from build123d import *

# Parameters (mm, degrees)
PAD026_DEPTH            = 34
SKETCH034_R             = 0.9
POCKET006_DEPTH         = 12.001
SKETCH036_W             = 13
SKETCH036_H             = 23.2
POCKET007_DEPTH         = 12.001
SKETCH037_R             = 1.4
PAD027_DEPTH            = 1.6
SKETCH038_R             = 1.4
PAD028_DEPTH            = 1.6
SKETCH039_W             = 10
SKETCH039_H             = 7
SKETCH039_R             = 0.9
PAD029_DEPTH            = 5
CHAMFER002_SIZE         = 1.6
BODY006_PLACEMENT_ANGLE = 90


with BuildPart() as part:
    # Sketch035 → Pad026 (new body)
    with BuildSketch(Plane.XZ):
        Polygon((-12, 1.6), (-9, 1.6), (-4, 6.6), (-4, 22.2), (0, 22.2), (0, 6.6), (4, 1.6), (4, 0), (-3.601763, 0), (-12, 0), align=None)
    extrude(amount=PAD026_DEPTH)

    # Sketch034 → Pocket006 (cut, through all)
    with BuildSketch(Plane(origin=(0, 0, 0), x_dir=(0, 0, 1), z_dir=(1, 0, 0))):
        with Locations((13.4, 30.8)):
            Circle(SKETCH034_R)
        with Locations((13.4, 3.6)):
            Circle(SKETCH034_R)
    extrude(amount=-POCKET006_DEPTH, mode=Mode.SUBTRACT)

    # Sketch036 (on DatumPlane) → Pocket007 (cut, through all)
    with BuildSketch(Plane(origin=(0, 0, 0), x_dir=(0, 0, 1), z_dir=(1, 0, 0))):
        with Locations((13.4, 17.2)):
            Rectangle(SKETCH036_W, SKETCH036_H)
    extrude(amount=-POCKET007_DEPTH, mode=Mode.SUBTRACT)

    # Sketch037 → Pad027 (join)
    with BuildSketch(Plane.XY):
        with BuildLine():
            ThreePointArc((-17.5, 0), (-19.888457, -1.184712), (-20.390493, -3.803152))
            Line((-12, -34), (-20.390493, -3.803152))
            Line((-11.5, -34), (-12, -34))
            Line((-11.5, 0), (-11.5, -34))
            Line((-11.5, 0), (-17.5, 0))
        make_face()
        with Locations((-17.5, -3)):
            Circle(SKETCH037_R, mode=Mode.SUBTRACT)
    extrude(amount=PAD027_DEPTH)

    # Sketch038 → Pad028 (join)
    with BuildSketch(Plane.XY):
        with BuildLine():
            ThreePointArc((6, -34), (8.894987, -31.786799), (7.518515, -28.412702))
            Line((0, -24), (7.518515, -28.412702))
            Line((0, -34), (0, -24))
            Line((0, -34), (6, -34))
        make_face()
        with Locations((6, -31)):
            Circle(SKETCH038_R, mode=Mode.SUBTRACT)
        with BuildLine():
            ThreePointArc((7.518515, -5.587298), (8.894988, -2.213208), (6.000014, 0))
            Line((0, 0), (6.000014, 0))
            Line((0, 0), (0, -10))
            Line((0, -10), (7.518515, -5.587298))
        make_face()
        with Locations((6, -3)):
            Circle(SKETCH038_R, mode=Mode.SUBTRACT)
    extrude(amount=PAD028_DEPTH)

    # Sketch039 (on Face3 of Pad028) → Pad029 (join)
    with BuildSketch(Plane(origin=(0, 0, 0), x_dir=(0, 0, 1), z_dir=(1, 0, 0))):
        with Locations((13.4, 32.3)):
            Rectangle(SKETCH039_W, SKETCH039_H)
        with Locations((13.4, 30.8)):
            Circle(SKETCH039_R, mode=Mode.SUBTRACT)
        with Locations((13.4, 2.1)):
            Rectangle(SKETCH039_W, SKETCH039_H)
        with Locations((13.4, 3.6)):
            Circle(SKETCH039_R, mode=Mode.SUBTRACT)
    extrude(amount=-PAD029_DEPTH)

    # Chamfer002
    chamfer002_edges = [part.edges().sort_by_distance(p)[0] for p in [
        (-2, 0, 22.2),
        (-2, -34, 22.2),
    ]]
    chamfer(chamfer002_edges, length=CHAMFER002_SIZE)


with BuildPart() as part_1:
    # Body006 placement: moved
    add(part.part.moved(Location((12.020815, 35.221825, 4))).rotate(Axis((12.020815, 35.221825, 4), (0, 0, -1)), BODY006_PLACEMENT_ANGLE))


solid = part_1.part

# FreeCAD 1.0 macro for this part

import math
import FreeCAD as App
import Part
import Sketcher
from FreeCAD import Vector
Q = App.Units.Quantity


def edges_at(feature, points):
    """Names of the edges that pass closest to the given points."""
    edges = feature.Shape.Edges
    near = lambda p: min(range(len(edges)), key=lambda i: edges[i].distToShape(Part.Vertex(*p))[0])
    return sorted({f"Edge{near(p) + 1}" for p in points})


def add_polygon(sketch, points):
    """Adds a closed chain of lines whose ends are joined by coincident constraints."""
    first, n = sketch.GeometryCount, len(points)
    for a, b in zip(points, points[1:] + points[:1]):
        sketch.addGeometry(Part.LineSegment(App.Vector(*a, 0), App.Vector(*b, 0)), False)
    for i in range(n):
        sketch.addConstraint(Sketcher.Constraint("Coincident", first + i, 2, first + (i + 1) % n, 1))

doc = App.newDocument("Part")
body = doc.addObject("PartDesign::Body", "Body")

# Sketch on XZ plane
sketch1 = body.newObject("Sketcher::SketchObject", "Sketch")
sketch1.AttachmentSupport = (doc.getObject("XZ_Plane"), [""])
sketch1.MapMode = "FlatFace"
add_polygon(sketch1, [(-9, 1.6), (-12, 1.6), (-12, 0), (4, 0), (4, 1.6), (0, 6.6), (0, 22.2), (-4, 22.2), (-4, 6.6)])  # lines 0-8
sketch1.addConstraint(Sketcher.Constraint("Horizontal", 0))
sketch1.addConstraint(Sketcher.Constraint("Vertical", 1))
sketch1.addConstraint(Sketcher.Constraint("Horizontal", 2))
sketch1.addConstraint(Sketcher.Constraint("Vertical", 3))
sketch1.addConstraint(Sketcher.Constraint("Vertical", 5))
sketch1.addConstraint(Sketcher.Constraint("Horizontal", 6))
sketch1.addConstraint(Sketcher.Constraint("Vertical", 7))
sketch1.addConstraint(Sketcher.Constraint("PointOnObject", 1, 2, -1))
sketch1.addConstraint(Sketcher.Constraint("PointOnObject", 4, 2, -2))
sketch1.addConstraint(Sketcher.Constraint("Horizontal", 0, 2, 3, 2))
sketch1.addConstraint(Sketcher.Constraint("Horizontal", 4, 2, 7, 2))
sketch1.addConstraint(Sketcher.Constraint("DistanceX", 0, 2, 0, 1, 3.0))
sketch1.addConstraint(Sketcher.Constraint("DistanceX", 2, 1, 2, 2, 16.0))
sketch1.addConstraint(Sketcher.Constraint("DistanceX", 6, 2, 6, 1, 4.0))
sketch1.addConstraint(Sketcher.Constraint("Angle", 8, Q("-135 deg")))
sketch1.addConstraint(Sketcher.Constraint("DistanceY", 1, 2, 1, 1, 1.6))
sketch1.addConstraint(Sketcher.Constraint("DistanceY", 5, 1, 5, 2, 15.6))
sketch1.addConstraint(Sketcher.Constraint("DistanceX", 0, 2, -1, 1, 12.0))
pad1 = body.newObject("PartDesign::Pad", "Pad")
pad1.Profile = sketch1
pad1.Length = 34

# Sketch on YZ plane
sketch2 = body.newObject("Sketcher::SketchObject", "Sketch001")
sketch2.AttachmentSupport = (doc.getObject("YZ_Plane"), [""])
sketch2.MapMode = "FlatFace"
sketch2.addGeometry(Part.Circle(Vector(-30.8, 13.4, 0), Vector(0, 0, 1), 0.9), False)
sketch2.addGeometry(Part.Circle(Vector(-3.6, 13.4, 0), Vector(0, 0, 1), 0.9), False)
sketch2.addConstraint(Sketcher.Constraint("Equal", 0, 1))
sketch2.addConstraint(Sketcher.Constraint("Horizontal", 0, 3, 1, 3))
sketch2.addConstraint(Sketcher.Constraint("Diameter", 0, 1.8))
sketch2.addConstraint(Sketcher.Constraint("DistanceX", 0, 3, -1, 1, 30.8))
sketch2.addConstraint(Sketcher.Constraint("DistanceY", -1, 1, 0, 3, 13.4))
sketch2.addConstraint(Sketcher.Constraint("DistanceX", 1, 3, -1, 1, 3.6))
pocket1 = body.newObject("PartDesign::Pocket", "Pocket")
pocket1.Profile = sketch2
pocket1.Type = "ThroughAll"

# Sketch on YZ plane
sketch3 = body.newObject("Sketcher::SketchObject", "Sketch002")
sketch3.AttachmentSupport = (doc.getObject("YZ_Plane"), [""])
sketch3.MapMode = "FlatFace"
add_polygon(sketch3, [(-28.8, 6.9), (-5.6, 6.9), (-5.6, 19.9), (-28.8, 19.9)])  # lines 0-3
sketch3.addConstraint(Sketcher.Constraint("Horizontal", 0))
sketch3.addConstraint(Sketcher.Constraint("Vertical", 1))
sketch3.addConstraint(Sketcher.Constraint("Horizontal", 2))
sketch3.addConstraint(Sketcher.Constraint("Vertical", 3))
sketch3.addConstraint(Sketcher.Constraint("DistanceY", 1, 1, 1, 2, 13.0))
sketch3.addConstraint(Sketcher.Constraint("DistanceX", 0, 1, 0, 2, 23.2))
sketch3.addConstraint(Sketcher.Constraint("DistanceX", 0, 2, -1, 1, 5.6))
sketch3.addConstraint(Sketcher.Constraint("DistanceY", -1, 1, 0, 2, 6.9))
pocket2 = body.newObject("PartDesign::Pocket", "Pocket001")
pocket2.Profile = sketch3
pocket2.Type = "ThroughAll"

# Sketch on XY plane
sketch4 = body.newObject("Sketcher::SketchObject", "Sketch003")
sketch4.AttachmentSupport = (doc.getObject("XY_Plane"), [""])
sketch4.MapMode = "FlatFace"
sketch4.addGeometry(Part.ArcOfCircle(Part.Circle(Vector(-17.499999, -3.000001, 0), Vector(0, 0, 1), 3.000001), math.radians(90.000023), math.radians(195.528448)), False)
sketch4.addGeometry(Part.LineSegment(Vector(-20.390493, -3.803152, 0), Vector(-12, -34, 0)), False)
sketch4.addGeometry(Part.LineSegment(Vector(-12, -34, 0), Vector(-11.5, -34, 0)), False)
sketch4.addGeometry(Part.LineSegment(Vector(-11.5, -34, 0), Vector(-11.5, 0, 0)), False)
sketch4.addGeometry(Part.LineSegment(Vector(-11.5, 0, 0), Vector(-17.5, 0, 0)), False)
sketch4.addGeometry(Part.Circle(Vector(-17.5, -3, 0), Vector(0, 0, 1), 1.4), False)
sketch4.addConstraint(Sketcher.Constraint("Tangent", 0, 2, 1, 1))
sketch4.addConstraint(Sketcher.Constraint("Coincident", 1, 2, 2, 1))
sketch4.addConstraint(Sketcher.Constraint("Coincident", 2, 2, 3, 1))
sketch4.addConstraint(Sketcher.Constraint("Coincident", 3, 2, 4, 1))
sketch4.addConstraint(Sketcher.Constraint("Tangent", 4, 2, 0, 1))
sketch4.addConstraint(Sketcher.Constraint("Horizontal", 2))
sketch4.addConstraint(Sketcher.Constraint("Vertical", 3))
sketch4.addConstraint(Sketcher.Constraint("Horizontal", 4))
sketch4.addConstraint(Sketcher.Constraint("Coincident", 5, 3, 0, 3))
sketch4.addConstraint(Sketcher.Constraint("PointOnObject", 3, 2, -1))
sketch4.addConstraint(Sketcher.Constraint("Radius", 0, 3.000001))
sketch4.addConstraint(Sketcher.Constraint("Diameter", 5, 2.8))
sketch4.addConstraint(Sketcher.Constraint("DistanceX", 4, 2, 4, 1, 6.0))
sketch4.addConstraint(Sketcher.Constraint("DistanceY", 3, 1, 3, 2, 34.0))
sketch4.addConstraint(Sketcher.Constraint("DistanceX", 2, 1, 2, 2, 0.5))
sketch4.addConstraint(Sketcher.Constraint("DistanceX", 1, 2, -1, 1, 12.0))
pad2 = body.newObject("PartDesign::Pad", "Pad001")
pad2.Profile = sketch4
pad2.Length = 1.6

# Sketch on XY plane
sketch5 = body.newObject("Sketcher::SketchObject", "Sketch004")
sketch5.AttachmentSupport = (doc.getObject("XY_Plane"), [""])
sketch5.MapMode = "FlatFace"
sketch5.addGeometry(Part.ArcOfCircle(Part.Circle(Vector(6.000001, -31, 0), Vector(0, 0, 1), 3), math.radians(-90.000012), math.radians(59.59085)), False)
sketch5.addGeometry(Part.LineSegment(Vector(7.518515, -28.412702, 0), Vector(0, -24, 0)), False)
sketch5.addGeometry(Part.LineSegment(Vector(0, -24, 0), Vector(0, -34, 0)), False)
sketch5.addGeometry(Part.LineSegment(Vector(0, -34, 0), Vector(6, -34, 0)), False)
sketch5.addGeometry(Part.Circle(Vector(6, -31, 0), Vector(0, 0, 1), 1.4), False)
sketch5.addGeometry(Part.ArcOfCircle(Part.Circle(Vector(5.999999, -3, 0), Vector(0, 0, 1), 3), math.radians(-59.590828), math.radians(89.999723)), False)
sketch5.addGeometry(Part.LineSegment(Vector(6.000014, 0, 0), Vector(0, 0, 0)), False)
sketch5.addGeometry(Part.LineSegment(Vector(0, 0, 0), Vector(0, -10, 0)), False)
sketch5.addGeometry(Part.LineSegment(Vector(0, -10, 0), Vector(7.518515, -5.587298, 0)), False)
sketch5.addGeometry(Part.Circle(Vector(6, -3, 0), Vector(0, 0, 1), 1.4), False)
sketch5.addConstraint(Sketcher.Constraint("Tangent", 0, 2, 1, 1))
sketch5.addConstraint(Sketcher.Constraint("Coincident", 1, 2, 2, 1))
sketch5.addConstraint(Sketcher.Constraint("Coincident", 2, 2, 3, 1))
sketch5.addConstraint(Sketcher.Constraint("Tangent", 3, 2, 0, 1))
sketch5.addConstraint(Sketcher.Constraint("Coincident", 5, 2, 6, 1))
sketch5.addConstraint(Sketcher.Constraint("Coincident", 6, 2, 7, 1))
sketch5.addConstraint(Sketcher.Constraint("Coincident", 7, 2, 8, 1))
sketch5.addConstraint(Sketcher.Constraint("Tangent", 8, 2, 5, 1))
sketch5.addConstraint(Sketcher.Constraint("Vertical", 2))
sketch5.addConstraint(Sketcher.Constraint("Horizontal", 3))
sketch5.addConstraint(Sketcher.Constraint("Horizontal", 6))
sketch5.addConstraint(Sketcher.Constraint("Vertical", 7))
sketch5.addConstraint(Sketcher.Constraint("Coincident", 6, 2, -1, 1))
sketch5.addConstraint(Sketcher.Constraint("Coincident", 4, 3, 0, 3))
sketch5.addConstraint(Sketcher.Constraint("Coincident", 9, 3, 5, 3))
sketch5.addConstraint(Sketcher.Constraint("Equal", 0, 5))
sketch5.addConstraint(Sketcher.Constraint("Equal", 4, 9))
sketch5.addConstraint(Sketcher.Constraint("PointOnObject", 1, 2, -2))
sketch5.addConstraint(Sketcher.Constraint("Vertical", 4, 3, 5, 3))
sketch5.addConstraint(Sketcher.Constraint("Vertical", 0, 2, 8, 2))
sketch5.addConstraint(Sketcher.Constraint("Radius", 0, 3.0))
sketch5.addConstraint(Sketcher.Constraint("Diameter", 4, 2.8))
sketch5.addConstraint(Sketcher.Constraint("DistanceX", 3, 1, 3, 2, 6.0))
sketch5.addConstraint(Sketcher.Constraint("DistanceY", 2, 2, 2, 1, 10.0))
sketch5.addConstraint(Sketcher.Constraint("DistanceY", 0, 3, -1, 1, 31.0))
sketch5.addConstraint(Sketcher.Constraint("DistanceX", 5, 2, 0, 2, 1.518501))
pad3 = body.newObject("PartDesign::Pad", "Pad002")
pad3.Profile = sketch5
pad3.Length = 1.6

# Sketch on YZ plane
sketch6 = body.newObject("Sketcher::SketchObject", "Sketch005")
sketch6.AttachmentSupport = (doc.getObject("YZ_Plane"), [""])
sketch6.MapMode = "FlatFace"
add_polygon(sketch6, [(-35.8, 8.4), (-28.8, 8.4), (-28.8, 18.4), (-35.8, 18.4)])  # lines 0-3
sketch6.addGeometry(Part.Circle(Vector(-30.8, 13.4, 0), Vector(0, 0, 1), 0.9), False)  # 4
add_polygon(sketch6, [(-5.6, 8.4), (1.4, 8.4), (1.4, 18.4), (-5.6, 18.4)])  # lines 5-8
sketch6.addGeometry(Part.Circle(Vector(-3.6, 13.4, 0), Vector(0, 0, 1), 0.9), False)  # 9
sketch6.addConstraint(Sketcher.Constraint("Horizontal", 0))
sketch6.addConstraint(Sketcher.Constraint("Vertical", 1))
sketch6.addConstraint(Sketcher.Constraint("Horizontal", 2))
sketch6.addConstraint(Sketcher.Constraint("Vertical", 3))
sketch6.addConstraint(Sketcher.Constraint("Horizontal", 5))
sketch6.addConstraint(Sketcher.Constraint("Vertical", 6))
sketch6.addConstraint(Sketcher.Constraint("Horizontal", 7))
sketch6.addConstraint(Sketcher.Constraint("Vertical", 8))
sketch6.addConstraint(Sketcher.Constraint("Equal", 4, 9))
sketch6.addConstraint(Sketcher.Constraint("Horizontal", 4, 3, 9, 3))
sketch6.addConstraint(Sketcher.Constraint("Horizontal", 3, 2, 5, 2))
sketch6.addConstraint(Sketcher.Constraint("Horizontal", 2, 2, 6, 2))
sketch6.addConstraint(Sketcher.Constraint("Equal", 2, 5))
sketch6.addConstraint(Sketcher.Constraint("Diameter", 4, 1.8))
sketch6.addConstraint(Sketcher.Constraint("DistanceX", 0, 1, 0, 2, 7.0))
sketch6.addConstraint(Sketcher.Constraint("DistanceY", 1, 1, 1, 2, 10.0))
sketch6.addConstraint(Sketcher.Constraint("DistanceX", 4, 3, 0, 2, 2.0))
sketch6.addConstraint(Sketcher.Constraint("DistanceY", 0, 2, 4, 3, 5.0))
sketch6.addConstraint(Sketcher.Constraint("DistanceX", 9, 3, 5, 2, 5.0))
sketch6.addConstraint(Sketcher.Constraint("DistanceX", 4, 3, -1, 1, 30.8))
sketch6.addConstraint(Sketcher.Constraint("DistanceY", -1, 1, 4, 3, 13.4))
sketch6.addConstraint(Sketcher.Constraint("DistanceX", 9, 3, -1, 1, 3.6))
pad4 = body.newObject("PartDesign::Pad", "Pad003")
pad4.Profile = sketch6
pad4.Length = 5
pad4.Reversed = True
doc.recompute()

chamfer = body.newObject("PartDesign::Chamfer", "Chamfer")
chamfer.Base = (pad4, edges_at(pad4, [(-2, 0, 22.2), (-2, -34, 22.2)]))
chamfer.Size = 1.6
body2 = doc.addObject("PartDesign::Body", "Body001")
doc.recompute()

body.Placement = App.Placement(Vector(12.020815, 35.221825, 4), App.Rotation(Vector(0, 0, -1), 90))
boolean = body2.newObject("PartDesign::Boolean", "Boolean")
boolean.Type = "Fuse"
boolean.addObjects([body])

doc.recompute()
